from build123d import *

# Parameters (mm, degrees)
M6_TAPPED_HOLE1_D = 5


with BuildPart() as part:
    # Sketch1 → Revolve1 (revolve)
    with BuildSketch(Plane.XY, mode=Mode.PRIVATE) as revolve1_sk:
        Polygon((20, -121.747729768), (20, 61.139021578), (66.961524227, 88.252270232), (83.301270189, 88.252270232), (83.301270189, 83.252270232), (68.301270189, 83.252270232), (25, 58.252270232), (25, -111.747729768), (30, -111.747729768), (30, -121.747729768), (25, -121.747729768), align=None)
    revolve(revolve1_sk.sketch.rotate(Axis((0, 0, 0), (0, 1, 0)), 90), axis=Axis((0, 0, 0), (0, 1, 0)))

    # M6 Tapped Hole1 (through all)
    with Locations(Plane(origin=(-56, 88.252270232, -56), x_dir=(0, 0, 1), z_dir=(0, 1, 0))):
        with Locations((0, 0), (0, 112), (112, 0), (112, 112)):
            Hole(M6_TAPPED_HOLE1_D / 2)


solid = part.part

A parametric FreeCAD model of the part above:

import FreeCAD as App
import Part
import Sketcher
Q = App.Units.Quantity

doc = App.newDocument("Part")
params = doc.addObject("Spreadsheet::Sheet", "Params")
for row, (alias, value) in enumerate([
    ("sketch1_width", "10 mm"),
    ("sketch1_width2", "5 mm"),
    ("sketch1_width3", "15 mm"),
    ("sketch1_height", "170 mm"),
    ("sketch1_length", "50 mm"),
    ("revolution_angle", "360 deg"),
    ("sketch2_diameter", "5 mm"),
    ("hole_diameter", "5 mm"),
], start=1):
    params.set(f"A{row}", alias)
    params.set(f"B{row}", "=" + value)
    params.setAlias(f"B{row}", alias)

body = doc.addObject("PartDesign::Body", "Body")

# Sketch on XY plane
sketch1 = doc.addObject("Sketcher::SketchObject", "Sketch")
body.addObject(sketch1)
sketch1.AttachmentSupport = (doc.XY_Plane, [""])
sketch1.MapMode = "FlatFace"
sketch1.addGeometry([
    Part.LineSegment(App.Vector(20, 61, 0), App.Vector(20, -122, 0)),  # 0
    Part.LineSegment(App.Vector(20, -122, 0), App.Vector(30, -122, 0)),  # 1
    Part.LineSegment(App.Vector(30, -122, 0), App.Vector(30, -112, 0)),  # 2
    Part.LineSegment(App.Vector(30, -112, 0), App.Vector(25, -112, 0)),  # 3
    Part.LineSegment(App.Vector(25, -112, 0), App.Vector(25, 58, 0)),  # 4
    Part.LineSegment(App.Vector(25, 58, 0), App.Vector(68, 83, 0)),  # 5
    Part.LineSegment(App.Vector(68, 83, 0), App.Vector(83, 83, 0)),  # 6
    Part.LineSegment(App.Vector(83, 83, 0), App.Vector(83, 88, 0)),  # 7
    Part.LineSegment(App.Vector(83, 88, 0), App.Vector(67, 88, 0)),  # 8
    Part.LineSegment(App.Vector(67, 88, 0), App.Vector(20, 61, 0)),  # 9
], False)
sketch1.addConstraint([
    Sketcher.Constraint("Coincident", 0, 2, 1, 1),
    Sketcher.Constraint("Coincident", 1, 2, 2, 1),
    Sketcher.Constraint("Coincident", 2, 2, 3, 1),
    Sketcher.Constraint("Coincident", 3, 2, 4, 1),
    Sketcher.Constraint("Coincident", 4, 2, 5, 1),
    Sketcher.Constraint("Coincident", 5, 2, 6, 1),
    Sketcher.Constraint("Coincident", 6, 2, 7, 1),
    Sketcher.Constraint("Coincident", 7, 2, 8, 1),
    Sketcher.Constraint("Coincident", 8, 2, 9, 1),
    Sketcher.Constraint("Coincident", 9, 2, 0, 1),
    Sketcher.Constraint("Vertical", 0),
    Sketcher.Constraint("Horizontal", 1),
    Sketcher.Constraint("Vertical", 2),
    Sketcher.Constraint("Horizontal", 3),
    Sketcher.Constraint("Vertical", 4),
    Sketcher.Constraint("Horizontal", 6),
    Sketcher.Constraint("Vertical", 7),
    Sketcher.Constraint("Horizontal", 8),
    Sketcher.Constraint("Parallel", 5, 9),
    Sketcher.Constraint("Equal", 1, 2),
    Sketcher.Constraint("Equal", 3, 7),
    Sketcher.Constraint("DistanceX", 1, 1, 1, 2, 10.0),
    Sketcher.Constraint("DistanceX", 3, 2, 3, 1, 5.0),
    Sketcher.Constraint("DistanceX", 6, 1, 6, 2, 15.0),
    Sketcher.Constraint("DistanceY", 4, 1, 4, 2, 170.0),
    Sketcher.Constraint("Angle", 5, Q("30 deg")),
    Sketcher.Constraint("Distance", 5, 50.0),
    Sketcher.Constraint("DistanceX", -1, 1, 0, 2, 20.0),
    Sketcher.Constraint("DistanceY", 0, 2, 0, 1, 182.886751),
    Sketcher.Constraint("DistanceY", 0, 2, -1, 1, 121.74773),
])
sketch1.setExpression("Constraints[21]", "Params.sketch1_width")
sketch1.setExpression("Constraints[22]", "Params.sketch1_width2")
sketch1.setExpression("Constraints[23]", "Params.sketch1_width3")
sketch1.setExpression("Constraints[24]", "Params.sketch1_height")
sketch1.setExpression("Constraints[26]", "Params.sketch1_length")
revolution = doc.addObject("PartDesign::Revolution", "Revolution")
body.addObject(revolution)
revolution.Profile = sketch1
revolution.ReferenceAxis = (sketch1, ["V_Axis"])
revolution.setExpression("Angle", "Params.revolution_angle")

# Sketch on XZ plane
sketch2 = doc.addObject("Sketcher::SketchObject", "Sketch001")
body.addObject(sketch2)
sketch2.AttachmentSupport = (doc.XZ_Plane, [""])
sketch2.MapMode = "FlatFace"
sketch2.AttachmentOffset = App.Placement(App.Vector(0, 0, -88.25227), App.Rotation())
sketch2.addGeometry([
    Part.Circle(App.Vector(-56, -56, 0), App.Vector(0, 0, 1), 2.5),
    Part.Circle(App.Vector(56, -56, 0), App.Vector(0, 0, 1), 2.5),
    Part.Circle(App.Vector(-56, 56, 0), App.Vector(0, 0, 1), 2.5),
    Part.Circle(App.Vector(56, 56, 0), App.Vector(0, 0, 1), 2.5),
], False)
sketch2.addConstraint([
    Sketcher.Constraint("Equal", 0, 1),
    Sketcher.Constraint("Equal", 1, 2),
    Sketcher.Constraint("Equal", 2, 3),
    Sketcher.Constraint("Symmetric", 1, 3, 2, 3, -1, 1),
    Sketcher.Constraint("Symmetric", 0, 3, 3, 3, -1, 1),
    Sketcher.Constraint("Symmetric", 0, 3, 1, 3, -2),
    Sketcher.Constraint("Diameter", 0, 5.0),
    Sketcher.Constraint("DistanceX", 0, 3, -1, 1, 56.0),
    Sketcher.Constraint("DistanceY", 0, 3, -1, 1, 56.0),
])
sketch2.setExpression("Constraints[6]", "Params.sketch2_diameter")
doc.recompute()
hole = doc.addObject("PartDesign::Hole", "Hole")
body.addObject(hole)
hole.Profile = sketch2
hole.ThreadType = "None"
hole.setExpression("Diameter", "Params.hole_diameter")
hole.DepthType = "ThroughAll"
hole.Reversed = True

doc.recompute()
